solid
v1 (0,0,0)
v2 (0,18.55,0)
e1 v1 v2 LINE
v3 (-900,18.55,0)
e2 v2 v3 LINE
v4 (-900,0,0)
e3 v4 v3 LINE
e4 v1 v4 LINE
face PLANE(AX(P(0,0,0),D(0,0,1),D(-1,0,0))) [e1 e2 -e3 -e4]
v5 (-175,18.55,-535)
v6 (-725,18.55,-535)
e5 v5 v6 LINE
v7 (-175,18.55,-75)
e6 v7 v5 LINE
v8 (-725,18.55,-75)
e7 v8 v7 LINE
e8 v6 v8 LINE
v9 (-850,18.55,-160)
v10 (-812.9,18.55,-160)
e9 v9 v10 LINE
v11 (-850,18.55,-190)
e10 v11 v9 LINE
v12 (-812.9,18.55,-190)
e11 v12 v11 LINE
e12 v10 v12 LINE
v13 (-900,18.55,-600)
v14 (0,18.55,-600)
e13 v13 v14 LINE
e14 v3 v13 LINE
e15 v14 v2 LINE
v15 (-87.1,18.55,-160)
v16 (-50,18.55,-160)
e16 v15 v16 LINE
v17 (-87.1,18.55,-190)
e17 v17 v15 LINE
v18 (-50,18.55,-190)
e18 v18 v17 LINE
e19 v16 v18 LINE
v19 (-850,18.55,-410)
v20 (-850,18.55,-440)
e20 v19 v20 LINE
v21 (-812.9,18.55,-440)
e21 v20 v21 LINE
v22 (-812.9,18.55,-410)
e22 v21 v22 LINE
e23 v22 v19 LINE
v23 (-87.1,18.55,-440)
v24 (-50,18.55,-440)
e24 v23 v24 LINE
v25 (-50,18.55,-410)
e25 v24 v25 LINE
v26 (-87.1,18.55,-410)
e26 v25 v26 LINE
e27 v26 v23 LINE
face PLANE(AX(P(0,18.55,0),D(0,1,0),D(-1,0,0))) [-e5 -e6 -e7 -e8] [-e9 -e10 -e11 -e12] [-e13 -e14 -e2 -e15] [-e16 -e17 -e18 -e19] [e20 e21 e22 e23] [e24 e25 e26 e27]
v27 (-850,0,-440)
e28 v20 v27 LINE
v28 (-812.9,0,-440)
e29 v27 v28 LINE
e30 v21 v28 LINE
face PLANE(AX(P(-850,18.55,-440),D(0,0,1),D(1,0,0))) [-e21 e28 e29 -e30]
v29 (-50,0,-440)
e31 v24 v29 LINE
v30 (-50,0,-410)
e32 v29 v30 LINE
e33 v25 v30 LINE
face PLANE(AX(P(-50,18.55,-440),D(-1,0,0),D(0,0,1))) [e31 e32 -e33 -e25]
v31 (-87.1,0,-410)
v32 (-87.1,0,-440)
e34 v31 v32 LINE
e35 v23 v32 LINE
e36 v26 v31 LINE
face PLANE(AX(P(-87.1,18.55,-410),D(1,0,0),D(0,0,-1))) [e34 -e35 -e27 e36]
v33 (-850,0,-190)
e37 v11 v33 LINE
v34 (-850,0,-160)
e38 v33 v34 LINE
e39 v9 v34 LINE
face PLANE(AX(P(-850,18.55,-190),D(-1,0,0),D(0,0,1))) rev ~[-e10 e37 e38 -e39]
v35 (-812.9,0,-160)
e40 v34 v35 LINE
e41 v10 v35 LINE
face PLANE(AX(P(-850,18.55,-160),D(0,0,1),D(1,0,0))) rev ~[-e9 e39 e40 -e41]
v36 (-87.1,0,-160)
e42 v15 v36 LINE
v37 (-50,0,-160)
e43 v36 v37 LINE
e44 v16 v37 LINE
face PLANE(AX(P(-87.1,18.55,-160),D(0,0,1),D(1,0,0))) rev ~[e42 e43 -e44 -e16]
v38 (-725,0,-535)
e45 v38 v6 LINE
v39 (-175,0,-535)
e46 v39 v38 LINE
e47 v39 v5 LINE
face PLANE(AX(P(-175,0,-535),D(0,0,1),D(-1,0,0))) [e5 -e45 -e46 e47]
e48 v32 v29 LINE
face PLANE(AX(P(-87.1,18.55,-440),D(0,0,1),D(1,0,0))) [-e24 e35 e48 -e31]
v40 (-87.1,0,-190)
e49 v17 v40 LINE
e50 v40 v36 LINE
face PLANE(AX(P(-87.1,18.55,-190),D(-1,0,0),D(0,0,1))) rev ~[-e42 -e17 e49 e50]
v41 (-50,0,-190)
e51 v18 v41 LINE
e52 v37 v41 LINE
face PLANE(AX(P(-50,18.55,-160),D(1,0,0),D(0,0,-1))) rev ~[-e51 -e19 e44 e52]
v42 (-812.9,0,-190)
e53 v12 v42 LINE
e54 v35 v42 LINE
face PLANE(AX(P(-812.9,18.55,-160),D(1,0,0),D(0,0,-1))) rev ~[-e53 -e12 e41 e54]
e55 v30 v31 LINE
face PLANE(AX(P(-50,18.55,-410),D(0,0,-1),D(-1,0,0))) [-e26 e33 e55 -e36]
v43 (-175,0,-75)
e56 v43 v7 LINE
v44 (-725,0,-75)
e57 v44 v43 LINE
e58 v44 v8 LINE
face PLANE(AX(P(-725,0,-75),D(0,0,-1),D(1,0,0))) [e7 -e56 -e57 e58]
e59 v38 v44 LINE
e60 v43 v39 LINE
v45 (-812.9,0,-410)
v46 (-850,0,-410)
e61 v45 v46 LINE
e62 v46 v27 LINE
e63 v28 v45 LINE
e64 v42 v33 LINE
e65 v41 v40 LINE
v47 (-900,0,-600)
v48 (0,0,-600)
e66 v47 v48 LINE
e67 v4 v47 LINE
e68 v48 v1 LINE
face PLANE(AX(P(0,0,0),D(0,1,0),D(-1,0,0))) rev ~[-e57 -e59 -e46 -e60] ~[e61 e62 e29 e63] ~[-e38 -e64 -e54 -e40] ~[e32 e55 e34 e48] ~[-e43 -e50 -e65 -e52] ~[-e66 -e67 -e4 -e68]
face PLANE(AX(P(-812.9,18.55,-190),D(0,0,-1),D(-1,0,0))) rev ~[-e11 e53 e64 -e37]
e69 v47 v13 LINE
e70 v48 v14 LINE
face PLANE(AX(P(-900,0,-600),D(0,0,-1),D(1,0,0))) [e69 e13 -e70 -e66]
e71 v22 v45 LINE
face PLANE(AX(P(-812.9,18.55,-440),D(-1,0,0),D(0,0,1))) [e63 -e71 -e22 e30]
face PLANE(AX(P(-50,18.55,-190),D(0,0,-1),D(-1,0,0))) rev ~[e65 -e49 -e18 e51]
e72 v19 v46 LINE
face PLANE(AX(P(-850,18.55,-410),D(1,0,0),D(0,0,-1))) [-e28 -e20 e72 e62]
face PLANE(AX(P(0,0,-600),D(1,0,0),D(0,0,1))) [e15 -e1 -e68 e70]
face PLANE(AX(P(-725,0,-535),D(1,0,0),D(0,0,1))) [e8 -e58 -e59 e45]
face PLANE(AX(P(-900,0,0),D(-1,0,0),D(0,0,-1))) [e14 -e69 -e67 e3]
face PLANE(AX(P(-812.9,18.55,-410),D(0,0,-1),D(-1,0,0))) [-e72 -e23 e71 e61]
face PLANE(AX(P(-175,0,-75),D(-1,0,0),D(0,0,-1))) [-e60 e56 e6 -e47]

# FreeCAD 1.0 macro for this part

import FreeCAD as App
import Part
import Sketcher
from FreeCAD import Vector


def add_polygon(sketch, points):
    """Adds a closed chain of lines whose ends are joined by coincident constraints."""
    first, n = sketch.GeometryCount, len(points)
    for a, b in zip(points, points[1:] + points[:1]):
        sketch.addGeometry(Part.LineSegment(App.Vector(*a, 0), App.Vector(*b, 0)), False)
    for i in range(n):
        sketch.addConstraint(Sketcher.Constraint("Coincident", first + i, 2, first + (i + 1) % n, 1))

doc = App.newDocument("Part")
params = doc.addObject("Spreadsheet::Sheet", "Params")
for row, (alias, value) in enumerate([
    ("sketch1_width", "900 mm"),
    ("sketch1_width2", "550 mm"),
    ("sketch1_height", "600 mm"),
    ("sketch1_height2", "460 mm"),
    ("pad1_length", "18.55 mm"),
    ("sketch2_height", "30 mm"),
    ("sketch2_width", "37.1 mm"),
    ("pocket1_length", "50 mm"),
], start=1):
    params.set(f"A{row}", alias)
    params.set(f"B{row}", "=" + value)
    params.setAlias(f"B{row}", alias)

body = doc.addObject("PartDesign::Body", "Body")

# Sketch on XZ plane
sketch1 = body.newObject("Sketcher::SketchObject", "Sketch")
sketch1.AttachmentSupport = (doc.getObject("XZ_Plane"), [""])
sketch1.MapMode = "FlatFace"
add_polygon(sketch1, [(-900, 0), (0, 0), (0, -600), (-900, -600)])  # lines 0-3
add_polygon(sketch1, [(-175, -75), (-725, -75), (-725, -535), (-175, -535)])  # lines 4-7
sketch1.addConstraint([
    Sketcher.Constraint("Horizontal", 0),
    Sketcher.Constraint("Vertical", 1),
    Sketcher.Constraint("Horizontal", 2),
    Sketcher.Constraint("Vertical", 3),
    Sketcher.Constraint("Horizontal", 4),
    Sketcher.Constraint("Vertical", 5),
    Sketcher.Constraint("Horizontal", 6),
    Sketcher.Constraint("Vertical", 7),
    Sketcher.Constraint("Coincident", 0, 2, -1, 1),
    Sketcher.Constraint("DistanceX", 0, 1, 0, 2, 900.0),
    Sketcher.Constraint("DistanceX", 4, 2, 4, 1, 550.0),
    Sketcher.Constraint("DistanceY", 1, 2, 1, 1, 600.0),
    Sketcher.Constraint("DistanceY", 5, 2, 5, 1, 460.0),
    Sketcher.Constraint("DistanceY", 4, 2, -1, 1, 75.0),
    Sketcher.Constraint("DistanceX", 6, 2, -1, 1, 175.0),
])
sketch1.setExpression("Constraints[17]", "Params.sketch1_width")
sketch1.setExpression("Constraints[18]", "Params.sketch1_width2")
sketch1.setExpression("Constraints[19]", "Params.sketch1_height")
sketch1.setExpression("Constraints[20]", "Params.sketch1_height2")
pad1 = body.newObject("PartDesign::Pad", "Pad")
pad1.Profile = sketch1
pad1.setExpression("Length", "Params.pad1_length")
pad1.Reversed = True

# Sketch on XZ plane
sketch2 = body.newObject("Sketcher::SketchObject", "Sketch001")
sketch2.AttachmentSupport = (doc.getObject("XZ_Plane"), [""])
sketch2.MapMode = "FlatFace"
sketch2.AttachmentOffset = App.Placement(Vector(0, 0, -18.55), App.Rotation())
add_polygon(sketch2, [(-813, -440), (-850, -440), (-850, -410), (-813, -410)])  # lines 0-3
add_polygon(sketch2, [(-850, -190), (-850, -160), (-813, -160), (-813, -190)])  # lines 4-7
add_polygon(sketch2, [(-50, -440), (-87, -440), (-87, -410), (-50, -410)])  # lines 8-11
add_polygon(sketch2, [(-87, -190), (-87, -160), (-50, -160), (-50, -190)])  # lines 12-15
sketch2.addConstraint([
    Sketcher.Constraint("Horizontal", 0),
    Sketcher.Constraint("Vertical", 1),
    Sketcher.Constraint("Horizontal", 2),
    Sketcher.Constraint("Vertical", 3),
    Sketcher.Constraint("Vertical", 4),
    Sketcher.Constraint("Horizontal", 5),
    Sketcher.Constraint("Vertical", 6),
    Sketcher.Constraint("Horizontal", 7),
    Sketcher.Constraint("Horizontal", 8),
    Sketcher.Constraint("Vertical", 9),
    Sketcher.Constraint("Horizontal", 10),
    Sketcher.Constraint("Vertical", 11),
    Sketcher.Constraint("Vertical", 12),
    Sketcher.Constraint("Horizontal", 13),
    Sketcher.Constraint("Vertical", 14),
    Sketcher.Constraint("Horizontal", 15),
    Sketcher.Constraint("Horizontal", 3, 2, 8, 2),
    Sketcher.Constraint("Horizontal", 2, 2, 9, 2),
    Sketcher.Constraint("Horizontal", 5, 2, 12, 2),
    Sketcher.Constraint("Horizontal", 7, 2, 14, 2),
    Sketcher.Constraint("Vertical", 1, 2, 4, 2),
    Sketcher.Constraint("Vertical", 3, 2, 5, 2),
    Sketcher.Constraint("Vertical", 9, 2, 12, 2),
    Sketcher.Constraint("Vertical", 11, 2, 13, 2),
    Sketcher.Constraint("Equal", 7, 8),
    Sketcher.Constraint("Equal", 3, 4),
    Sketcher.Constraint("DistanceY", 1, 1, 1, 2, 30.0),
    Sketcher.Constraint("DistanceX", 0, 2, 0, 1, 37.1),
    Sketcher.Constraint("DistanceY", 4, 2, -1, 1, 160.0),
    Sketcher.Constraint("DistanceX", 10, 2, -1, 1, 50.0),
    Sketcher.Constraint("DistanceX", 0, 2, -1, 1, 850.0),
    Sketcher.Constraint("DistanceY", 0, 2, -1, 1, 440.0),
])
sketch2.setExpression("Constraints[42]", "Params.sketch2_height")
sketch2.setExpression("Constraints[43]", "Params.sketch2_width")
pocket1 = body.newObject("PartDesign::Pocket", "Pocket")
pocket1.Profile = sketch2
pocket1.setExpression("Length", "Params.pocket1_length")
pocket1.Reversed = True

doc.recompute()
